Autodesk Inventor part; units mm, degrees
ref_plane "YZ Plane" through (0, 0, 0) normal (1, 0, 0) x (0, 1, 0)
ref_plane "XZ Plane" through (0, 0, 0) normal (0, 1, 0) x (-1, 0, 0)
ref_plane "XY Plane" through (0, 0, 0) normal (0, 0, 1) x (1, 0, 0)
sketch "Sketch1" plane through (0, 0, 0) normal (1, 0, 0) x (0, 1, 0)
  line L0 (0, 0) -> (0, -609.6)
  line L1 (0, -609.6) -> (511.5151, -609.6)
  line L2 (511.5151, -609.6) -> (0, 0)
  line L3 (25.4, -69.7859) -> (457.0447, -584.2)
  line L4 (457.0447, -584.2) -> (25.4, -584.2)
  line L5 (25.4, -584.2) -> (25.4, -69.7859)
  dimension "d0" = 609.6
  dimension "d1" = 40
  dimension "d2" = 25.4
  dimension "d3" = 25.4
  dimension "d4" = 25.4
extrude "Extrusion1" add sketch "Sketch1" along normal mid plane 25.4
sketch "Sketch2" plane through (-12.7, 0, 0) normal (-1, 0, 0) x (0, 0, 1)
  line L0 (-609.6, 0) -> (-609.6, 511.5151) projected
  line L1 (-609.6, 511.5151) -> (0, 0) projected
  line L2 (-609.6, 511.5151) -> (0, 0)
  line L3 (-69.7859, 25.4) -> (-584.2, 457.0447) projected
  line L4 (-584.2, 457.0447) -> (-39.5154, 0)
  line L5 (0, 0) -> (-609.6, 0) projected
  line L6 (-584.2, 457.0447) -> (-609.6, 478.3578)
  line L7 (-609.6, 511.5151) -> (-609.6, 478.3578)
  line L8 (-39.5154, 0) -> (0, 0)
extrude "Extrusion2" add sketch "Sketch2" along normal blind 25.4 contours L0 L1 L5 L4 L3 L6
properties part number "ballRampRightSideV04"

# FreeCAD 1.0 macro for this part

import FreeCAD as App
import Part
import Sketcher
Q = App.Units.Quantity


def add_polygon(sketch, points):
    """Adds a closed chain of lines whose ends are joined by coincident constraints."""
    first, n = sketch.GeometryCount, len(points)
    for a, b in zip(points, points[1:] + points[:1]):
        sketch.addGeometry(Part.LineSegment(App.Vector(*a, 0), App.Vector(*b, 0)), False)
    for i in range(n):
        sketch.addConstraint(Sketcher.Constraint("Coincident", first + i, 2, first + (i + 1) % n, 1))

doc = App.newDocument("Part")
body = doc.addObject("PartDesign::Body", "Body")

# Sketch on YZ plane
sketch1 = doc.addObject("Sketcher::SketchObject", "Sketch")
body.addObject(sketch1)
sketch1.AttachmentSupport = (doc.YZ_Plane, [""])
sketch1.MapMode = "FlatFace"
add_polygon(sketch1, [(511.5151, -609.6), (0, 0), (0, -609.6)])  # lines 0-2
add_polygon(sketch1, [(25.4, -584.2), (25.4, -69.7859), (457.0447, -584.2)])  # lines 3-5
sketch1.addConstraint([
    Sketcher.Constraint("Vertical", 1),
    Sketcher.Constraint("Horizontal", 2),
    Sketcher.Constraint("Vertical", 3),
    Sketcher.Constraint("Horizontal", 5),
    Sketcher.Constraint("Coincident", 0, 2, -1, 1),
    Sketcher.Constraint("Parallel", 0, 4),
    Sketcher.Constraint("DistanceY", 1, 2, 1, 1, Q("24 in")),
    Sketcher.Constraint("DistanceX", -1, 1, 3, 2, Q("1 in")),
    Sketcher.Constraint("DistanceY", 2, 2, 4, 2, Q("1 in")),
    Sketcher.Constraint("Angle", 0, Q("130 deg")),
    Sketcher.Constraint("Distance", 4, Q("26.4378 in")),
])
pad1 = doc.addObject("PartDesign::Pad", "Pad")
body.addObject(pad1)
pad1.Profile = sketch1
pad1.Length = Q("1 in")
pad1.Midplane = True

# Sketch on YZ plane
sketch2 = doc.addObject("Sketcher::SketchObject", "Sketch001")
body.addObject(sketch2)
sketch2.AttachmentSupport = (doc.YZ_Plane, [""])
sketch2.MapMode = "FlatFace"
sketch2.AttachmentOffset = App.Placement(App.Vector(0, 0, -0.5 * 25.4), App.Rotation())
add_polygon(sketch2, [(511.5151, -609.6), (478.3578, -609.6), (457.0447, -584.2), (25.399981, -69.785916), (0, -39.5154), (0, 0)])  # lines 0-5
sketch2.addConstraint([
    Sketcher.Constraint("Horizontal", 0),
    Sketcher.Constraint("Vertical", 4),
    Sketcher.Constraint("Coincident", 4, 2, -1, 1),
    Sketcher.Constraint("Parallel", 1, 2),
    Sketcher.Constraint("Parallel", 2, 3),
    Sketcher.Constraint("Parallel", 3, 5),
    Sketcher.Constraint("DistanceY", 0, 2, -1, 1, Q("24 in")),
    Sketcher.Constraint("DistanceY", 1, 2, -1, 1, Q("23 in")),
    Sketcher.Constraint("DistanceX", -1, 1, 2, 2, Q("1 in")),
    Sketcher.Constraint("Angle", 1, Q("130 deg")),
    Sketcher.Constraint("DistanceX", 0, 2, 0, 1, Q("1.3054 in")),
])
pad2 = doc.addObject("PartDesign::Pad", "Pad001")
body.addObject(pad2)
pad2.Profile = sketch2
pad2.Length = Q("1 in")
pad2.Reversed = True

doc.recompute()
